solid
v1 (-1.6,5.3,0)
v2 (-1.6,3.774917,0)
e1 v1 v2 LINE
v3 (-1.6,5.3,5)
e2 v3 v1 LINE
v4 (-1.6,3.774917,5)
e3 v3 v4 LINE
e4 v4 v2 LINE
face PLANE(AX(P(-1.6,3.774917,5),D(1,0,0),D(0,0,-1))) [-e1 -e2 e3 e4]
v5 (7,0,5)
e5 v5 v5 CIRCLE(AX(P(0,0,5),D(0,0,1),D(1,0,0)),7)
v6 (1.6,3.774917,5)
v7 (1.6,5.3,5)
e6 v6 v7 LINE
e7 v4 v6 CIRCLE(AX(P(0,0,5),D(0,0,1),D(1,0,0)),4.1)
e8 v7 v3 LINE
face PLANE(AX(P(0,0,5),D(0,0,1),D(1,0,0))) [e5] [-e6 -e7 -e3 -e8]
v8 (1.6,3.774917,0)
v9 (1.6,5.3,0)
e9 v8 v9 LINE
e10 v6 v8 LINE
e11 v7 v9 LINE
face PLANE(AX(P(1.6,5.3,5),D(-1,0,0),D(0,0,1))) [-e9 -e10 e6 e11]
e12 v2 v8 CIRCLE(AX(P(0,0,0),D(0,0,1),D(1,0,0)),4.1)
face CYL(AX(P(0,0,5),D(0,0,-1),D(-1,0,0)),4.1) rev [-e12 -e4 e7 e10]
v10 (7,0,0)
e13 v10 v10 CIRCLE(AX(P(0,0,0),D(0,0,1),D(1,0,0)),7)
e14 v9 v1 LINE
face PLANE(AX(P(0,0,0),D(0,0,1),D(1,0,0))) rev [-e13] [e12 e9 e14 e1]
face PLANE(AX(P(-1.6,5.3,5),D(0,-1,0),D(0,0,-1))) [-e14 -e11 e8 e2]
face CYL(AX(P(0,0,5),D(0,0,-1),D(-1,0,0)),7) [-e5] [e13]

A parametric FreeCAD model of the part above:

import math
import FreeCAD as App
import Part
import Sketcher
from FreeCAD import Vector

doc = App.newDocument("Part")
params = doc.addObject("Spreadsheet::Sheet", "Params")
for row, (alias, value) in enumerate([
    ("sketch1_diameter", "14 mm"),
    ("sketch1_radius", "4.1 mm"),
    ("sketch1_width", "3.2 mm"),
    ("pad1_length", "5 mm"),
], start=1):
    params.set(f"A{row}", alias)
    params.set(f"B{row}", "=" + value)
    params.setAlias(f"B{row}", alias)

body = doc.addObject("PartDesign::Body", "Body")

# Sketch on XY plane
sketch1 = body.newObject("Sketcher::SketchObject", "Sketch")
sketch1.AttachmentSupport = (doc.getObject("XY_Plane"), [""])
sketch1.MapMode = "FlatFace"
sketch1.addGeometry([
    Part.Circle(Vector(0, 0, 0), Vector(0, 0, 1), 7),  # 0
    Part.ArcOfCircle(Part.Circle(Vector(0, 0, 0), Vector(0, 0, 1), 4.1), math.radians(113), math.radians(427)),  # 1
    Part.LineSegment(Vector(-1.6, 3.8, 0), Vector(-1.6, 5.3, 0)),  # 2
    Part.LineSegment(Vector(-1.6, 5.3, 0), Vector(1.6, 5.3, 0)),  # 3
    Part.LineSegment(Vector(1.6, 5.3, 0), Vector(1.6, 3.8, 0)),  # 4
], False)
sketch1.addConstraint([
    Sketcher.Constraint("Coincident", 1, 1, 2, 1),
    Sketcher.Constraint("Coincident", 2, 2, 3, 1),
    Sketcher.Constraint("Coincident", 3, 2, 4, 1),
    Sketcher.Constraint("Coincident", 4, 2, 1, 2),
    Sketcher.Constraint("Vertical", 2),
    Sketcher.Constraint("Horizontal", 3),
    Sketcher.Constraint("Vertical", 4),
    Sketcher.Constraint("Coincident", 0, 3, -1, 1),
    Sketcher.Constraint("Coincident", 1, 3, -1, 1),
    Sketcher.Constraint("Horizontal", 1, 1, 4, 2),
    Sketcher.Constraint("Diameter", 0, 14.0),
    Sketcher.Constraint("Radius", 1, 4.1),
    Sketcher.Constraint("DistanceX", 3, 1, 3, 2, 3.2),
    Sketcher.Constraint("DistanceY", -1, 1, 2, 2, 5.3),
])
sketch1.setExpression("Constraints[10]", "Params.sketch1_diameter")
sketch1.setExpression("Constraints[11]", "Params.sketch1_radius")
sketch1.setExpression("Constraints[12]", "Params.sketch1_width")
pad1 = body.newObject("PartDesign::Pad", "Pad")
pad1.Profile = sketch1
pad1.setExpression("Length", "Params.pad1_length")

doc.recompute()
